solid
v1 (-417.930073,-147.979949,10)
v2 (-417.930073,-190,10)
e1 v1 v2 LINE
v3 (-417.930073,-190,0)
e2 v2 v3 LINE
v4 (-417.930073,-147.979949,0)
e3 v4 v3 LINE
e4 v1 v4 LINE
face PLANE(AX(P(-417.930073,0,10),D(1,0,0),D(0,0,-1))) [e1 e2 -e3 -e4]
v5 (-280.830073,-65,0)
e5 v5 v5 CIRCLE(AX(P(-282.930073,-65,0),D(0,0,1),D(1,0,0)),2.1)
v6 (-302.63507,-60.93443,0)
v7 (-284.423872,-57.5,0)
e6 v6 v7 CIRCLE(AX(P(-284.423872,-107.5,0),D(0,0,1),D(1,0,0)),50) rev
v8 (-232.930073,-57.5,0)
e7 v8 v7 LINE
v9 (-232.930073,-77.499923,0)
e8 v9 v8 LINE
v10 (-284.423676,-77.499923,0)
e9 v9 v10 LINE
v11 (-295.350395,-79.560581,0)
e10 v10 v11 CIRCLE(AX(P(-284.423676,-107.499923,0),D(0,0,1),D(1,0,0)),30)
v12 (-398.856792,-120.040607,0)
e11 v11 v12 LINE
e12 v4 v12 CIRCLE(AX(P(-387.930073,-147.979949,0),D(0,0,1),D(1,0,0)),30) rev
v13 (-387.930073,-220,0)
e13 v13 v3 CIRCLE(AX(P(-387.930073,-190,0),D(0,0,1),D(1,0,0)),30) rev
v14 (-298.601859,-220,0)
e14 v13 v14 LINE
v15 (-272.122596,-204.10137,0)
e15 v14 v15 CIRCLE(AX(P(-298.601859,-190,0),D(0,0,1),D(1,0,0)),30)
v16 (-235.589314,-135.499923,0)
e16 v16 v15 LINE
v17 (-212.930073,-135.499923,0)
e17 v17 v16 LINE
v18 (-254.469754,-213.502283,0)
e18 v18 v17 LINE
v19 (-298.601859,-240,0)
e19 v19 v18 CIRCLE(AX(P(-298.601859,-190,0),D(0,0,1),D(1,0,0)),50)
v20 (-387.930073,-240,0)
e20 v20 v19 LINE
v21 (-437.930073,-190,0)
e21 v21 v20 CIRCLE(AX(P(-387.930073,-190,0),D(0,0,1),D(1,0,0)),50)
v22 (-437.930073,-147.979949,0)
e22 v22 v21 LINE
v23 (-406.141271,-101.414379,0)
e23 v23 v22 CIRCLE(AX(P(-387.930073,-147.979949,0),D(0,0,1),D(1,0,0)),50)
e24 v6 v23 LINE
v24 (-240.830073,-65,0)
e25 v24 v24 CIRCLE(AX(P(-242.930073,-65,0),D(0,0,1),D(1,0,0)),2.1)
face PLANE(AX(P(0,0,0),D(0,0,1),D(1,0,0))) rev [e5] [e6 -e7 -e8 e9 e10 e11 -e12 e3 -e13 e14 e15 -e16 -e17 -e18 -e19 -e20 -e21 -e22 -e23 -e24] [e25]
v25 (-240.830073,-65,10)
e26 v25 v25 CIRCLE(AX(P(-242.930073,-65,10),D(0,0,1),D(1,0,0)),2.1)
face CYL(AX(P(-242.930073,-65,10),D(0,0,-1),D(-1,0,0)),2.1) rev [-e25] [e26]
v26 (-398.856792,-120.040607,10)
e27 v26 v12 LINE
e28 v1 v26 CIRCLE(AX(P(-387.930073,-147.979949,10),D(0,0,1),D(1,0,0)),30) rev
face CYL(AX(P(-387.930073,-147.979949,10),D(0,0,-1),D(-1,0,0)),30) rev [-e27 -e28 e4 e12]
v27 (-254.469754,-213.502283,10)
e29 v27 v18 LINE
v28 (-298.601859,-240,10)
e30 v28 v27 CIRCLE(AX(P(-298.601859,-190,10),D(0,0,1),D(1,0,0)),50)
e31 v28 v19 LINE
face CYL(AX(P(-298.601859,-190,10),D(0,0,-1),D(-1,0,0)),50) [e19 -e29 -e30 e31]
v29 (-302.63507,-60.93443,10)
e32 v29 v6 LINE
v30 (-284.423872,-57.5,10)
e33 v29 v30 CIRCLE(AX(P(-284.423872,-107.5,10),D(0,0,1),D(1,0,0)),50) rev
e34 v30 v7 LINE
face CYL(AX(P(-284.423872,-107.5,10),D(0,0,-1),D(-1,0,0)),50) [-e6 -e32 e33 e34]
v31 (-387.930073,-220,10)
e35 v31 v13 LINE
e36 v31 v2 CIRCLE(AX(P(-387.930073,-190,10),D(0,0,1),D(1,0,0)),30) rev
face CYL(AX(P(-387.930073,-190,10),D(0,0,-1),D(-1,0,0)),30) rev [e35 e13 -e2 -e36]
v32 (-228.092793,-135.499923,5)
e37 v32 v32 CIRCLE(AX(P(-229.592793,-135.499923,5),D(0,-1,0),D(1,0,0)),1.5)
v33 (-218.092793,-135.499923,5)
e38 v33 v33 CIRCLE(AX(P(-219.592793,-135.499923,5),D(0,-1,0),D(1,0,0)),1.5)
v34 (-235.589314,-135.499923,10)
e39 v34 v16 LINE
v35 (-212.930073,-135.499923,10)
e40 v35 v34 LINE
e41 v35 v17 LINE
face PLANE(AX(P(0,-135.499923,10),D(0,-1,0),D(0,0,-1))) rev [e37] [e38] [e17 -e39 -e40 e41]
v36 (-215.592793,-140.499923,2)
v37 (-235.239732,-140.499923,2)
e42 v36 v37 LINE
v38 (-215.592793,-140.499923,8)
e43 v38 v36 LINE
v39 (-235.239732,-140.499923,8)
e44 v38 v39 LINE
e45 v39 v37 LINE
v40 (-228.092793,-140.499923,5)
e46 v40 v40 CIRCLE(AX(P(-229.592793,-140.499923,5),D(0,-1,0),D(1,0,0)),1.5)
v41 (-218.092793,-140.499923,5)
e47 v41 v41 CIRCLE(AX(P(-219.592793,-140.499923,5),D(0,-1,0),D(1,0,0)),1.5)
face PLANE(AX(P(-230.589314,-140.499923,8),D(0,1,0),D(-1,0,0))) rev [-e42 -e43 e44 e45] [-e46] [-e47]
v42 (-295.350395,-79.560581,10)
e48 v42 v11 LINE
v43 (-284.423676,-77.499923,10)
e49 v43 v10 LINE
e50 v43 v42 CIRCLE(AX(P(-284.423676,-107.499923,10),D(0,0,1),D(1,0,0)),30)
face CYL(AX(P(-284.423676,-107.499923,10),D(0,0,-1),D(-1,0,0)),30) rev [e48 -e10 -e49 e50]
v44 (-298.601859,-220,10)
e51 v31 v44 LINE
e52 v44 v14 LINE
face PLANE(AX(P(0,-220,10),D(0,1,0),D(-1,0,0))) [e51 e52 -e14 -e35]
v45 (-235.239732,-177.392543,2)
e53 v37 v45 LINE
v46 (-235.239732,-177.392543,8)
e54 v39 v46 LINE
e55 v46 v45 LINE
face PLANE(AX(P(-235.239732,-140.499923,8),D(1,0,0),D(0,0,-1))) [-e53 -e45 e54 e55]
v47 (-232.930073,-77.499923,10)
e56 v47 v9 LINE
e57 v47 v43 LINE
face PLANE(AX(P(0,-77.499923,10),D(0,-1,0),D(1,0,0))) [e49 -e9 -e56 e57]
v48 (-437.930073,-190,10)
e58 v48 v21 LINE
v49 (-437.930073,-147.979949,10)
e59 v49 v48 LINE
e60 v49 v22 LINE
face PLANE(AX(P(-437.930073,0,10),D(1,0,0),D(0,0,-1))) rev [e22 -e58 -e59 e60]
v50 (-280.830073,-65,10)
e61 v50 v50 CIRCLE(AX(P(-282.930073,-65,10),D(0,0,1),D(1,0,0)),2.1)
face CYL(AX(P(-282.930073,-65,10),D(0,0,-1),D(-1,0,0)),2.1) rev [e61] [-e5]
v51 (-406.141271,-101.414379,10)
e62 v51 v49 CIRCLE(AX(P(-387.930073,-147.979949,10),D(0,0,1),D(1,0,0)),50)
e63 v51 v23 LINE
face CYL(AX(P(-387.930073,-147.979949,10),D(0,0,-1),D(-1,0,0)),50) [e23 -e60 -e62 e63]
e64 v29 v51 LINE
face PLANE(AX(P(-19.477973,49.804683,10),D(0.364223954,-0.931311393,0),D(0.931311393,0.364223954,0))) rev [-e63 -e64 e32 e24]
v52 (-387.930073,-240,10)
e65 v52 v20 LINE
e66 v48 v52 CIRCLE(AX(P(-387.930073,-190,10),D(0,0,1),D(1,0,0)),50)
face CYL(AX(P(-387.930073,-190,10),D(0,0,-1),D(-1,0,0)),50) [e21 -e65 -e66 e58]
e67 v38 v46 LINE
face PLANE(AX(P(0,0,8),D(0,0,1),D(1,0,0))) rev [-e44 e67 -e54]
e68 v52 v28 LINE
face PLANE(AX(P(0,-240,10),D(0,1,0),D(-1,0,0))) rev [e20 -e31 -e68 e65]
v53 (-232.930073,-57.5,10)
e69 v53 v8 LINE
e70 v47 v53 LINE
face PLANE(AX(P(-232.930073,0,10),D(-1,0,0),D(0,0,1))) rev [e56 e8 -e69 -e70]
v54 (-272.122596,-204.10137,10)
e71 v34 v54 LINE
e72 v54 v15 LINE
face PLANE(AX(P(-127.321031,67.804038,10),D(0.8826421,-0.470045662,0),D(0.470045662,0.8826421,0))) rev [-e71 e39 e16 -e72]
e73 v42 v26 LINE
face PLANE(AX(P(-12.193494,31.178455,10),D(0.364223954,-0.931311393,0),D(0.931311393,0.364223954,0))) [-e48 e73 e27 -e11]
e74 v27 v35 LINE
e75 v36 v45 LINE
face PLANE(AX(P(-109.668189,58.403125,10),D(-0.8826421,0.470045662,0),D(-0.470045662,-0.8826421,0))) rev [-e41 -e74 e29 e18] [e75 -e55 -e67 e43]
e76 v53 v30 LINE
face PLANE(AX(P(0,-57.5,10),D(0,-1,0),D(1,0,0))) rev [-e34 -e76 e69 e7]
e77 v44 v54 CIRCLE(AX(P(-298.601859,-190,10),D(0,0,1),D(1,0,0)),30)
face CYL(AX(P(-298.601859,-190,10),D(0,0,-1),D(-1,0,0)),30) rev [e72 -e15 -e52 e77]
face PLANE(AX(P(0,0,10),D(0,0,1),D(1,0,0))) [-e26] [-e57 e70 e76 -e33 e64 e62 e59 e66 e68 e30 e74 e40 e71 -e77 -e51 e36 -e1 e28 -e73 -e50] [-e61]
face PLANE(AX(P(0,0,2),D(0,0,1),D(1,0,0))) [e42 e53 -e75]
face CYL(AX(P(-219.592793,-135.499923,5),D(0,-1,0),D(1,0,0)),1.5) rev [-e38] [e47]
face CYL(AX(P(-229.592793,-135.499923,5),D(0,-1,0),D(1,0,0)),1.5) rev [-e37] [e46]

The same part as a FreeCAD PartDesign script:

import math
import FreeCAD as App
import Part
import Sketcher
from FreeCAD import Vector
Q = App.Units.Quantity


def add_polygon(sketch, points):
    """Adds a closed chain of lines whose ends are joined by coincident constraints."""
    first, n = sketch.GeometryCount, len(points)
    for a, b in zip(points, points[1:] + points[:1]):
        sketch.addGeometry(Part.LineSegment(App.Vector(*a, 0), App.Vector(*b, 0)), False)
    for i in range(n):
        sketch.addConstraint(Sketcher.Constraint("Coincident", first + i, 2, first + (i + 1) % n, 1))

doc = App.newDocument("Part")
body = doc.addObject("PartDesign::Body", "Body")

sketch1 = doc.addObject("Sketcher::SketchObject", "Sketch")
body.addObject(sketch1)
sketch1.AttachmentSupport = (doc.XY_Plane, [""])
sketch1.MapMode = "FlatFace"
sketch1.addGeometry(Part.LineSegment(Vector(-387.9, -240, 0), Vector(-298.6, -240, 0)), False)
sketch1.addGeometry(Part.ArcOfCircle(Part.Circle(Vector(-298.6, -190, 0), Vector(0, 0, 1), 50), math.radians(-90), math.radians(-28)), False)
sketch1.addGeometry(Part.LineSegment(Vector(-254.5, -213.5, 0), Vector(-212.9, -135.5, 0)), False)
sketch1.addGeometry(Part.LineSegment(Vector(-212.9, -135.5, 0), Vector(-235.6, -135.5, 0)), False)
sketch1.addGeometry(Part.LineSegment(Vector(-235.6, -135.5, 0), Vector(-272.1, -204.1, 0)), False)
sketch1.addGeometry(Part.ArcOfCircle(Part.Circle(Vector(-298.6, -190, 0), Vector(0, 0, 1), 30), math.radians(-90), math.radians(-28)), False)
sketch1.addGeometry(Part.LineSegment(Vector(-298.6, -220, 0), Vector(-387.9, -220, 0)), False)
sketch1.addGeometry(Part.ArcOfCircle(Part.Circle(Vector(-387.9, -190, 0), Vector(0, 0, 1), 30), math.radians(180), math.radians(270)), False)
sketch1.addGeometry(Part.LineSegment(Vector(-417.9, -190, 0), Vector(-417.9, -148, 0)), False)
sketch1.addGeometry(Part.ArcOfCircle(Part.Circle(Vector(-387.9, -148, 0), Vector(0, 0, 1), 30), math.radians(111), math.radians(180)), False)
sketch1.addGeometry(Part.LineSegment(Vector(-398.9, -120, 0), Vector(-295.4, -79.6, 0)), False)
sketch1.addGeometry(Part.ArcOfCircle(Part.Circle(Vector(-284.4, -107.5, 0), Vector(0, 0, 1), 30), math.radians(90), math.radians(111)), False)
sketch1.addGeometry(Part.LineSegment(Vector(-284.4, -77.5, 0), Vector(-232.9, -77.5, 0)), False)
sketch1.addGeometry(Part.LineSegment(Vector(-232.9, -77.5, 0), Vector(-232.9, -57.5, 0)), False)
sketch1.addGeometry(Part.LineSegment(Vector(-232.9, -57.5, 0), Vector(-284.4, -57.5, 0)), False)
sketch1.addGeometry(Part.ArcOfCircle(Part.Circle(Vector(-284.4, -107.5, 0), Vector(0, 0, 1), 50), math.radians(90), math.radians(111)), False)
sketch1.addGeometry(Part.LineSegment(Vector(-302.6, -60.9, 0), Vector(-406.1, -101.4, 0)), False)
sketch1.addGeometry(Part.ArcOfCircle(Part.Circle(Vector(-387.9, -148, 0), Vector(0, 0, 1), 50), math.radians(111), math.radians(180)), False)
sketch1.addGeometry(Part.LineSegment(Vector(-437.9, -148, 0), Vector(-437.9, -190, 0)), False)
sketch1.addGeometry(Part.ArcOfCircle(Part.Circle(Vector(-387.9, -190, 0), Vector(0, 0, 1), 50), math.radians(180), math.radians(270)), False)
sketch1.addGeometry(Part.Circle(Vector(-282.9, -65, 0), Vector(0, 0, 1), 2.1), False)
sketch1.addGeometry(Part.Circle(Vector(-242.9, -65, 0), Vector(0, 0, 1), 2.1), False)
sketch1.addConstraint(Sketcher.Constraint("Tangent", 0, 2, 1, 1))
sketch1.addConstraint(Sketcher.Constraint("Tangent", 1, 2, 2, 1))
sketch1.addConstraint(Sketcher.Constraint("Coincident", 2, 2, 3, 1))
sketch1.addConstraint(Sketcher.Constraint("Coincident", 3, 2, 4, 1))
sketch1.addConstraint(Sketcher.Constraint("Tangent", 4, 2, 5, 2))
sketch1.addConstraint(Sketcher.Constraint("Tangent", 5, 1, 6, 1))
sketch1.addConstraint(Sketcher.Constraint("Tangent", 6, 2, 7, 2))
sketch1.addConstraint(Sketcher.Constraint("Tangent", 7, 1, 8, 1))
sketch1.addConstraint(Sketcher.Constraint("Tangent", 8, 2, 9, 2))
sketch1.addConstraint(Sketcher.Constraint("Tangent", 9, 1, 10, 1))
sketch1.addConstraint(Sketcher.Constraint("Tangent", 10, 2, 11, 2))
sketch1.addConstraint(Sketcher.Constraint("Tangent", 11, 1, 12, 1))
sketch1.addConstraint(Sketcher.Constraint("Coincident", 12, 2, 13, 1))
sketch1.addConstraint(Sketcher.Constraint("Coincident", 13, 2, 14, 1))
sketch1.addConstraint(Sketcher.Constraint("Tangent", 14, 2, 15, 1))
sketch1.addConstraint(Sketcher.Constraint("Tangent", 15, 2, 16, 1))
sketch1.addConstraint(Sketcher.Constraint("Tangent", 16, 2, 17, 1))
sketch1.addConstraint(Sketcher.Constraint("Tangent", 17, 2, 18, 1))
sketch1.addConstraint(Sketcher.Constraint("Tangent", 18, 2, 19, 1))
sketch1.addConstraint(Sketcher.Constraint("Tangent", 19, 2, 0, 1))
sketch1.addConstraint(Sketcher.Constraint("Horizontal", 0))
sketch1.addConstraint(Sketcher.Constraint("Horizontal", 3))
sketch1.addConstraint(Sketcher.Constraint("Horizontal", 6))
sketch1.addConstraint(Sketcher.Constraint("Vertical", 8))
sketch1.addConstraint(Sketcher.Constraint("Horizontal", 12))
sketch1.addConstraint(Sketcher.Constraint("Vertical", 13))
sketch1.addConstraint(Sketcher.Constraint("Horizontal", 14))
sketch1.addConstraint(Sketcher.Constraint("Vertical", 18))
sketch1.addConstraint(Sketcher.Constraint("Coincident", 5, 3, 1, 3))
sketch1.addConstraint(Sketcher.Constraint("Coincident", 17, 3, 9, 3))
sketch1.addConstraint(Sketcher.Constraint("Coincident", 19, 3, 7, 3))
sketch1.addConstraint(Sketcher.Constraint("Equal", 5, 7))
sketch1.addConstraint(Sketcher.Constraint("Equal", 7, 9))
sketch1.addConstraint(Sketcher.Constraint("Equal", 9, 11))
sketch1.addConstraint(Sketcher.Constraint("Equal", 1, 15))
sketch1.addConstraint(Sketcher.Constraint("Equal", 20, 21))
sketch1.addConstraint(Sketcher.Constraint("Parallel", 2, 4))
sketch1.addConstraint(Sketcher.Constraint("Parallel", 10, 16))
sketch1.addConstraint(Sketcher.Constraint("Horizontal", 20, 3, 21, 3))
sketch1.addConstraint(Sketcher.Constraint("Radius", 1, Q("50 mm")))
sketch1.addConstraint(Sketcher.Constraint("Radius", 5, Q("30 mm")))
sketch1.addConstraint(Sketcher.Constraint("Diameter", 20, Q("4.2 mm")))
sketch1.addConstraint(Sketcher.Constraint("DistanceY", 1, 3, -1, 1, Q("190 mm")))
sketch1.addConstraint(Sketcher.Constraint("DistanceY", 20, 3, -1, 1, Q("65 mm")))
sketch1.addConstraint(Sketcher.Constraint("DistanceX", 9, 3, 20, 3, Q("105 mm")))
sketch1.addConstraint(Sketcher.Constraint("DistanceX", 20, 3, 21, 3, Q("40 mm")))
sketch1.addConstraint(Sketcher.Constraint("DistanceX", 21, 3, 2, 2, Q("30 mm")))
sketch1.addConstraint(Sketcher.Constraint("DistanceY", 2, 2, 11, 3, Q("28 mm")))
sketch1.addConstraint(Sketcher.Constraint("DistanceX", 21, 3, 12, 2, Q("10 mm")))
sketch1.addConstraint(Sketcher.Constraint("DistanceY", 15, 3, -1, 1, Q("107.5 mm")))
sketch1.addConstraint(Sketcher.Constraint("DistanceX", 14, 2, 14, 1, Q("51.493799 mm")))
sketch1.addConstraint(Sketcher.Constraint("DistanceX", 3, 2, 3, 1, Q("22.659241 mm")))
sketch1.addConstraint(Sketcher.Constraint("DistanceY", 8, 1, 8, 2, Q("42.020051 mm")))
sketch1.addConstraint(Sketcher.Constraint("Distance", 10, Q("111.140482 mm")))
sketch1.addConstraint(Sketcher.Constraint("DistanceX", 1, 3, -1, 1, Q("298.601859 mm")))
pad1 = doc.addObject("PartDesign::Pad", "Pad")
body.addObject(pad1)
pad1.Profile = sketch1
pad1.Length = 10

sketch2 = doc.addObject("Sketcher::SketchObject", "Sketch001")
body.addObject(sketch2)
sketch2.AttachmentSupport = (doc.XY_Plane, [""])
sketch2.MapMode = "FlatFace"
sketch2.AttachmentOffset = App.Placement(Vector(0, 0, 5), App.Rotation())
add_polygon(sketch2, [(-235, -177), (-216, -140), (-235, -140)])
sketch2.addConstraint(Sketcher.Constraint("Horizontal", 1))
sketch2.addConstraint(Sketcher.Constraint("Vertical", 2))
sketch2.addConstraint(Sketcher.Constraint("DistanceX", 1, 2, 1, 1, Q("19.646939 mm")))
sketch2.addConstraint(Sketcher.Constraint("DistanceY", 2, 2, 2, 1, Q("36.892619 mm")))
sketch2.addConstraint(Sketcher.Constraint("DistanceX", 1, 2, -1, 1, Q("235.239732 mm")))
sketch2.addConstraint(Sketcher.Constraint("DistanceY", 0, 2, -1, 1, Q("140.499923 mm")))
pocket1 = doc.addObject("PartDesign::Pocket", "Pocket")
body.addObject(pocket1)
pocket1.Profile = sketch2
pocket1.Type = "TwoLengths"
pocket1.Length = 3
pocket1.Length2 = 3
pocket1.Reversed = True

sketch3 = doc.addObject("Sketcher::SketchObject", "Sketch002")
body.addObject(sketch3)
sketch3.AttachmentSupport = (doc.XZ_Plane, [""])
sketch3.MapMode = "FlatFace"
sketch3.AttachmentOffset = App.Placement(Vector(0, 0, 140.499923), App.Rotation())
sketch3.addGeometry(Part.Circle(Vector(-229.6, 5, 0), Vector(0, 0, 1), 1.5), False)
sketch3.addGeometry(Part.Circle(Vector(-219.6, 5, 0), Vector(0, 0, 1), 1.5), False)
sketch3.addConstraint(Sketcher.Constraint("Equal", 0, 1))
sketch3.addConstraint(Sketcher.Constraint("Horizontal", 0, 3, 1, 3))
sketch3.addConstraint(Sketcher.Constraint("Diameter", 0, Q("3 mm")))
sketch3.addConstraint(Sketcher.Constraint("DistanceY", -1, 1, 0, 3, Q("5 mm")))
sketch3.addConstraint(Sketcher.Constraint("DistanceX", 0, 3, 1, 3, Q("10 mm")))
sketch3.addConstraint(Sketcher.Constraint("DistanceX", 0, 3, -1, 1, Q("229.592793 mm")))
pocket2 = doc.addObject("PartDesign::Pocket", "Pocket001")
body.addObject(pocket2)
pocket2.Profile = sketch3
pocket2.Length = 5

doc.recompute()
